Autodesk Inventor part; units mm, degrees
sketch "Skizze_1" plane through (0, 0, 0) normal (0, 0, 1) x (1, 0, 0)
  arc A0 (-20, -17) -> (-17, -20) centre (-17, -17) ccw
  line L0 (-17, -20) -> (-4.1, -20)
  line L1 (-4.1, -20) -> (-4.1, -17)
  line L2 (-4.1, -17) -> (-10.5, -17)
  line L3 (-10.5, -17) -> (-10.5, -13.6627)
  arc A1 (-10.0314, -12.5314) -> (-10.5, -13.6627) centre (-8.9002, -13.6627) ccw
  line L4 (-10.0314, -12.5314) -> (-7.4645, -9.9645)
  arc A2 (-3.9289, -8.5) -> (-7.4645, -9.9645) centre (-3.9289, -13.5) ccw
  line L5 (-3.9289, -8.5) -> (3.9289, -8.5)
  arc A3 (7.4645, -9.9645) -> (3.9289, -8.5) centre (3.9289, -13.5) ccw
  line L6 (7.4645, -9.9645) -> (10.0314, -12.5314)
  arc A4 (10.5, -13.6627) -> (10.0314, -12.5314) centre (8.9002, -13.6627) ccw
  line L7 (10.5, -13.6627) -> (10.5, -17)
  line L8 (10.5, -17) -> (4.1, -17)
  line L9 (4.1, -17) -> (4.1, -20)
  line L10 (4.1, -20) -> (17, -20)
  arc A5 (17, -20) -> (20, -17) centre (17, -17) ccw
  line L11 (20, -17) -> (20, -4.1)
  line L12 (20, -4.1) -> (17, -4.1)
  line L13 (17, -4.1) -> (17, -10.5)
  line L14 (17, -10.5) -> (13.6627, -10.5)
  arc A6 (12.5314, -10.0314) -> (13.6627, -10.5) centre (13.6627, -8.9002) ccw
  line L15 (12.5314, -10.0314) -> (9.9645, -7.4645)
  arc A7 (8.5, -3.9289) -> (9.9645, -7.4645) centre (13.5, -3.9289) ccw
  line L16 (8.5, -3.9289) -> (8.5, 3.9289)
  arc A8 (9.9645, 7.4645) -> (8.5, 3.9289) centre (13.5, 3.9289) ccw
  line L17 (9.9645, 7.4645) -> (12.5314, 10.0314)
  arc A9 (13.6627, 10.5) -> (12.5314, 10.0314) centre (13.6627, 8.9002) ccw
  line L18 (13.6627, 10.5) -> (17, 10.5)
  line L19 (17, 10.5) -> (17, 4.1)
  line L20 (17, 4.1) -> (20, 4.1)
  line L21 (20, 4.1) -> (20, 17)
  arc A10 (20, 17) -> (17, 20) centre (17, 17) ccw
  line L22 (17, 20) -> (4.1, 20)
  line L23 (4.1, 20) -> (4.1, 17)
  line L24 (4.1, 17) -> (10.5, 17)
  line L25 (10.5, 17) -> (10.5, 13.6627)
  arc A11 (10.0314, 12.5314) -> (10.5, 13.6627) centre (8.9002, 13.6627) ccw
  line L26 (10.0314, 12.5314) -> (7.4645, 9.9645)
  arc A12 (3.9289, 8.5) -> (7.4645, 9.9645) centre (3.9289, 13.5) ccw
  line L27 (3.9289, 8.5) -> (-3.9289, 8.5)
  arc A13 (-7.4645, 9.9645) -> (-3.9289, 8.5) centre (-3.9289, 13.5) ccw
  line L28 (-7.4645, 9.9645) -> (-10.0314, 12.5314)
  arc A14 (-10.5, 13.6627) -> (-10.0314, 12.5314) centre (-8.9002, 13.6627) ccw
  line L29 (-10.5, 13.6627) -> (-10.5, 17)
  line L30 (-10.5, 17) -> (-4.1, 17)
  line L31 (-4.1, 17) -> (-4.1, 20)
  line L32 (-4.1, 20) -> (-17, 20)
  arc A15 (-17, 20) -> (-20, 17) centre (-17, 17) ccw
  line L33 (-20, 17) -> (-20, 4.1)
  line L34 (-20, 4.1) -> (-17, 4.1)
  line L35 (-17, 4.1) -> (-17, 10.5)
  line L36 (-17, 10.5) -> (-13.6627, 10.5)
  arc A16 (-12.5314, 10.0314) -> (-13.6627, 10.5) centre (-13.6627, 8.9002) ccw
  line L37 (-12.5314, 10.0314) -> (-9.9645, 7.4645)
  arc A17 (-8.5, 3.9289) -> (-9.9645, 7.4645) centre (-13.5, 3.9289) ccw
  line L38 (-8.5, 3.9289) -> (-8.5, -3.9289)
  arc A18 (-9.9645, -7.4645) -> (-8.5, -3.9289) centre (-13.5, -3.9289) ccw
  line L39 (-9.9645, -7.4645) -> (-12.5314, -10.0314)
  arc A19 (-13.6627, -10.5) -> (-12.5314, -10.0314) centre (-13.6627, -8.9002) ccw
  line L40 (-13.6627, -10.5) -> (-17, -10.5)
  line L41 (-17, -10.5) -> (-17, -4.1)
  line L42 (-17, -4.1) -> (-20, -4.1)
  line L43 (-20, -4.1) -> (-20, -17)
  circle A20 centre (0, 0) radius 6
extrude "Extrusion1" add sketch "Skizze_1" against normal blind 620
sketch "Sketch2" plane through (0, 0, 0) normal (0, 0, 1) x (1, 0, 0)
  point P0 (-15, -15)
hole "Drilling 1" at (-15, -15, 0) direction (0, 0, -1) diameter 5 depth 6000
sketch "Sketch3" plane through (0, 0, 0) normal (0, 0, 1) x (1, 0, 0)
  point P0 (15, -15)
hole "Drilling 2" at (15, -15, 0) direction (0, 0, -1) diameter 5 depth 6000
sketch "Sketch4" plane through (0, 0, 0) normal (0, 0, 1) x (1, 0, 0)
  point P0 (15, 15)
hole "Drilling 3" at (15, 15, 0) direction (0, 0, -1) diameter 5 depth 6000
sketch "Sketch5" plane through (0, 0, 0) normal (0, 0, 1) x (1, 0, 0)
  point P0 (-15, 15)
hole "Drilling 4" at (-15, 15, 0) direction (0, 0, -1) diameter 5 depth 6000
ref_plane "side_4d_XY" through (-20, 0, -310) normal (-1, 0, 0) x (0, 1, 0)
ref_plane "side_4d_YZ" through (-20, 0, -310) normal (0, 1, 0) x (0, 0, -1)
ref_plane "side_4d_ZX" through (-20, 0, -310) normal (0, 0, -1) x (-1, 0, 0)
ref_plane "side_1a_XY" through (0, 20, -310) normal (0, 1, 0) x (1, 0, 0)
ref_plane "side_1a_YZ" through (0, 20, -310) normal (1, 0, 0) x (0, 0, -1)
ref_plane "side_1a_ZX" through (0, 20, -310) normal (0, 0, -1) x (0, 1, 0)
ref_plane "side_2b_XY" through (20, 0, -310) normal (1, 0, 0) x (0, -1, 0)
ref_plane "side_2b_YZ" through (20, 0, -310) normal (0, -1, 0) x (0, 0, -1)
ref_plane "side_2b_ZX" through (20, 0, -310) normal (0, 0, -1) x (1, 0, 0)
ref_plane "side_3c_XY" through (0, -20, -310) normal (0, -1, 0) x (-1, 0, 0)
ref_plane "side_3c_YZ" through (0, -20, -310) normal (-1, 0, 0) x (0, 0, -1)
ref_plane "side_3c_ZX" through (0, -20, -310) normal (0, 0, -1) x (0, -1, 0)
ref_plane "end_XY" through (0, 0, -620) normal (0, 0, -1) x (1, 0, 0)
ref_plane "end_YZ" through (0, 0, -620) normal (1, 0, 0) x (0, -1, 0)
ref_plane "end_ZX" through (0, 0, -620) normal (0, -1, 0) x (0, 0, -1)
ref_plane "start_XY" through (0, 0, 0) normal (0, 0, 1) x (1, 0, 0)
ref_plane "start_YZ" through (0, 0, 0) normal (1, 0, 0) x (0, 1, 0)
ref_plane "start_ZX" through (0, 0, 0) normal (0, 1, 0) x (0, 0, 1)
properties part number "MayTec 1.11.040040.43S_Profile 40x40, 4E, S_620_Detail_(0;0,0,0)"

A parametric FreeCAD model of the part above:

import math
import FreeCAD as App
import Part
import Sketcher
from FreeCAD import Vector

doc = App.newDocument("Part")
body = doc.addObject("PartDesign::Body", "Body")

# Sketch on XY plane
sketch1 = body.newObject("Sketcher::SketchObject", "Sketch")
sketch1.AttachmentSupport = (doc.getObject("XY_Plane"), [""])
sketch1.MapMode = "FlatFace"
sketch1.addGeometry([
    Part.LineSegment(Vector(-20, -4.1, 0), Vector(-20, -17, 0)),  # 0
    Part.ArcOfCircle(Part.Circle(Vector(-17, -17, 0), Vector(0, 0, 1), 3), math.radians(180), math.radians(270)),  # 1
    Part.LineSegment(Vector(-17, -20, 0), Vector(-4.1, -20, 0)),  # 2
    Part.LineSegment(Vector(-4.1, -20, 0), Vector(-4.1, -17, 0)),  # 3
    Part.LineSegment(Vector(-4.1, -17, 0), Vector(-10.5, -17, 0)),  # 4
    Part.LineSegment(Vector(-10.5, -17, 0), Vector(-10.5, -13.7, 0)),  # 5
    Part.ArcOfCircle(Part.Circle(Vector(-8.9, -13.7, 0), Vector(0, 0, 1), 1.6), math.radians(135), math.radians(180)),  # 6
    Part.LineSegment(Vector(-10, -12.5, 0), Vector(-7.5, -10, 0)),  # 7
    Part.ArcOfCircle(Part.Circle(Vector(-3.9, -13.5, 0), Vector(0, 0, 1), 5), math.radians(90), math.radians(135)),  # 8
    Part.LineSegment(Vector(-3.9, -8.5, 0), Vector(3.9, -8.5, 0)),  # 9
    Part.ArcOfCircle(Part.Circle(Vector(3.9, -13.5, 0), Vector(0, 0, 1), 5), math.radians(45), math.radians(90)),  # 10
    Part.LineSegment(Vector(7.5, -10, 0), Vector(10, -12.5, 0)),  # 11
    Part.ArcOfCircle(Part.Circle(Vector(8.9, -13.7, 0), Vector(0, 0, 1), 1.6), math.radians(0), math.radians(45)),  # 12
    Part.LineSegment(Vector(10.5, -13.7, 0), Vector(10.5, -17, 0)),  # 13
    Part.LineSegment(Vector(10.5, -17, 0), Vector(4.1, -17, 0)),  # 14
    Part.LineSegment(Vector(4.1, -17, 0), Vector(4.1, -20, 0)),  # 15
    Part.LineSegment(Vector(4.1, -20, 0), Vector(17, -20, 0)),  # 16
    Part.ArcOfCircle(Part.Circle(Vector(17, -17, 0), Vector(0, 0, 1), 3), math.radians(-90), math.radians(0)),  # 17
    Part.LineSegment(Vector(20, -17, 0), Vector(20, -4.1, 0)),  # 18
    Part.LineSegment(Vector(20, -4.1, 0), Vector(17, -4.1, 0)),  # 19
    Part.LineSegment(Vector(17, -4.1, 0), Vector(17, -10.5, 0)),  # 20
    Part.LineSegment(Vector(17, -10.5, 0), Vector(13.7, -10.5, 0)),  # 21
    Part.ArcOfCircle(Part.Circle(Vector(13.7, -8.9, 0), Vector(0, 0, 1), 1.6), math.radians(-135), math.radians(-90)),  # 22
    Part.LineSegment(Vector(12.5, -10, 0), Vector(10, -7.5, 0)),  # 23
    Part.ArcOfCircle(Part.Circle(Vector(13.5, -3.9, 0), Vector(0, 0, 1), 5), math.radians(180), math.radians(225)),  # 24
    Part.LineSegment(Vector(8.5, -3.9, 0), Vector(8.5, 3.9, 0)),  # 25
    Part.ArcOfCircle(Part.Circle(Vector(13.5, 3.9, 0), Vector(0, 0, 1), 5), math.radians(135), math.radians(180)),  # 26
    Part.LineSegment(Vector(10, 7.5, 0), Vector(12.5, 10, 0)),  # 27
    Part.ArcOfCircle(Part.Circle(Vector(13.7, 8.9, 0), Vector(0, 0, 1), 1.6), math.radians(90), math.radians(135)),  # 28
    Part.LineSegment(Vector(13.7, 10.5, 0), Vector(17, 10.5, 0)),  # 29
    Part.LineSegment(Vector(17, 10.5, 0), Vector(17, 4.1, 0)),  # 30
    Part.LineSegment(Vector(17, 4.1, 0), Vector(20, 4.1, 0)),  # 31
    Part.LineSegment(Vector(20, 4.1, 0), Vector(20, 17, 0)),  # 32
    Part.ArcOfCircle(Part.Circle(Vector(17, 17, 0), Vector(0, 0, 1), 3), math.radians(0), math.radians(90)),  # 33
    Part.LineSegment(Vector(17, 20, 0), Vector(4.1, 20, 0)),  # 34
    Part.LineSegment(Vector(4.1, 20, 0), Vector(4.1, 17, 0)),  # 35
    Part.LineSegment(Vector(4.1, 17, 0), Vector(10.5, 17, 0)),  # 36
    Part.LineSegment(Vector(10.5, 17, 0), Vector(10.5, 13.7, 0)),  # 37
    Part.ArcOfCircle(Part.Circle(Vector(8.9, 13.7, 0), Vector(0, 0, 1), 1.6), math.radians(-45), math.radians(0)),  # 38
    Part.LineSegment(Vector(10, 12.5, 0), Vector(7.5, 10, 0)),  # 39
    Part.ArcOfCircle(Part.Circle(Vector(3.9, 13.5, 0), Vector(0, 0, 1), 5), math.radians(-90), math.radians(-45)),  # 40
    Part.LineSegment(Vector(3.9, 8.5, 0), Vector(-3.9, 8.5, 0)),  # 41
    Part.ArcOfCircle(Part.Circle(Vector(-3.9, 13.5, 0), Vector(0, 0, 1), 5), math.radians(-135), math.radians(-90)),  # 42
    Part.LineSegment(Vector(-7.5, 10, 0), Vector(-10, 12.5, 0)),  # 43
    Part.ArcOfCircle(Part.Circle(Vector(-8.9, 13.7, 0), Vector(0, 0, 1), 1.6), math.radians(180), math.radians(225)),  # 44
    Part.LineSegment(Vector(-10.5, 13.7, 0), Vector(-10.5, 17, 0)),  # 45
    Part.LineSegment(Vector(-10.5, 17, 0), Vector(-4.1, 17, 0)),  # 46
    Part.LineSegment(Vector(-4.1, 17, 0), Vector(-4.1, 20, 0)),  # 47
    Part.LineSegment(Vector(-4.1, 20, 0), Vector(-17, 20, 0)),  # 48
    Part.ArcOfCircle(Part.Circle(Vector(-17, 17, 0), Vector(0, 0, 1), 3), math.radians(90), math.radians(180)),  # 49
    Part.LineSegment(Vector(-20, 17, 0), Vector(-20, 4.1, 0)),  # 50
    Part.LineSegment(Vector(-20, 4.1, 0), Vector(-17, 4.1, 0)),  # 51
    Part.LineSegment(Vector(-17, 4.1, 0), Vector(-17, 10.5, 0)),  # 52
    Part.LineSegment(Vector(-17, 10.5, 0), Vector(-13.7, 10.5, 0)),  # 53
    Part.ArcOfCircle(Part.Circle(Vector(-13.7, 8.9, 0), Vector(0, 0, 1), 1.6), math.radians(45), math.radians(90)),  # 54
    Part.LineSegment(Vector(-12.5, 10, 0), Vector(-10, 7.5, 0)),  # 55
    Part.ArcOfCircle(Part.Circle(Vector(-13.5, 3.9, 0), Vector(0, 0, 1), 5), math.radians(0), math.radians(45)),  # 56
    Part.LineSegment(Vector(-8.5, 3.9, 0), Vector(-8.5, -3.9, 0)),  # 57
    Part.ArcOfCircle(Part.Circle(Vector(-13.5, -3.9, 0), Vector(0, 0, 1), 5), math.radians(-45), math.radians(0)),  # 58
    Part.LineSegment(Vector(-10, -7.5, 0), Vector(-12.5, -10, 0)),  # 59
    Part.ArcOfCircle(Part.Circle(Vector(-13.7, -8.9, 0), Vector(0, 0, 1), 1.6), math.radians(-90), math.radians(-45)),  # 60
    Part.LineSegment(Vector(-13.7, -10.5, 0), Vector(-17, -10.5, 0)),  # 61
    Part.LineSegment(Vector(-17, -10.5, 0), Vector(-17, -4.1, 0)),  # 62
    Part.LineSegment(Vector(-17, -4.1, 0), Vector(-20, -4.1, 0)),  # 63
    Part.Circle(Vector(0, 0, 0), Vector(0, 0, 1), 6),  # 64
], False)
sketch1.addConstraint([
    Sketcher.Constraint("Tangent", 0, 2, 1, 1),
    Sketcher.Constraint("Tangent", 1, 2, 2, 1),
    Sketcher.Constraint("Coincident", 2, 2, 3, 1),
    Sketcher.Constraint("Coincident", 3, 2, 4, 1),
    Sketcher.Constraint("Coincident", 4, 2, 5, 1),
    Sketcher.Constraint("Tangent", 5, 2, 6, 2),
    Sketcher.Constraint("Tangent", 6, 1, 7, 1),
    Sketcher.Constraint("Tangent", 7, 2, 8, 2),
    Sketcher.Constraint("Tangent", 8, 1, 9, 1),
    Sketcher.Constraint("Tangent", 9, 2, 10, 2),
    Sketcher.Constraint("Tangent", 10, 1, 11, 1),
    Sketcher.Constraint("Tangent", 11, 2, 12, 2),
    Sketcher.Constraint("Tangent", 12, 1, 13, 1),
    Sketcher.Constraint("Coincident", 13, 2, 14, 1),
    Sketcher.Constraint("Coincident", 14, 2, 15, 1),
    Sketcher.Constraint("Coincident", 15, 2, 16, 1),
    Sketcher.Constraint("Tangent", 16, 2, 17, 1),
    Sketcher.Constraint("Tangent", 17, 2, 18, 1),
    Sketcher.Constraint("Coincident", 18, 2, 19, 1),
    Sketcher.Constraint("Coincident", 19, 2, 20, 1),
    Sketcher.Constraint("Coincident", 20, 2, 21, 1),
    Sketcher.Constraint("Tangent", 21, 2, 22, 2),
    Sketcher.Constraint("Tangent", 22, 1, 23, 1),
    Sketcher.Constraint("Tangent", 23, 2, 24, 2),
    Sketcher.Constraint("Tangent", 24, 1, 25, 1),
    Sketcher.Constraint("Tangent", 25, 2, 26, 2),
    Sketcher.Constraint("Tangent", 26, 1, 27, 1),
    Sketcher.Constraint("Tangent", 27, 2, 28, 2),
    Sketcher.Constraint("Tangent", 28, 1, 29, 1),
    Sketcher.Constraint("Coincident", 29, 2, 30, 1),
    Sketcher.Constraint("Coincident", 30, 2, 31, 1),
    Sketcher.Constraint("Coincident", 31, 2, 32, 1),
    Sketcher.Constraint("Tangent", 32, 2, 33, 1),
    Sketcher.Constraint("Tangent", 33, 2, 34, 1),
    Sketcher.Constraint("Coincident", 34, 2, 35, 1),
    Sketcher.Constraint("Coincident", 35, 2, 36, 1),
    Sketcher.Constraint("Coincident", 36, 2, 37, 1),
    Sketcher.Constraint("Tangent", 37, 2, 38, 2),
    Sketcher.Constraint("Tangent", 38, 1, 39, 1),
    Sketcher.Constraint("Tangent", 39, 2, 40, 2),
    Sketcher.Constraint("Tangent", 40, 1, 41, 1),
    Sketcher.Constraint("Tangent", 41, 2, 42, 2),
    Sketcher.Constraint("Tangent", 42, 1, 43, 1),
    Sketcher.Constraint("Tangent", 43, 2, 44, 2),
    Sketcher.Constraint("Tangent", 44, 1, 45, 1),
    Sketcher.Constraint("Coincident", 45, 2, 46, 1),
    Sketcher.Constraint("Coincident", 46, 2, 47, 1),
    Sketcher.Constraint("Coincident", 47, 2, 48, 1),
    Sketcher.Constraint("Tangent", 48, 2, 49, 1),
    Sketcher.Constraint("Tangent", 49, 2, 50, 1),
    Sketcher.Constraint("Coincident", 50, 2, 51, 1),
    Sketcher.Constraint("Coincident", 51, 2, 52, 1),
    Sketcher.Constraint("Coincident", 52, 2, 53, 1),
    Sketcher.Constraint("Tangent", 53, 2, 54, 2),
    Sketcher.Constraint("Tangent", 54, 1, 55, 1),
    Sketcher.Constraint("Tangent", 55, 2, 56, 2),
    Sketcher.Constraint("Tangent", 56, 1, 57, 1),
    Sketcher.Constraint("Tangent", 57, 2, 58, 2),
    Sketcher.Constraint("Tangent", 58, 1, 59, 1),
    Sketcher.Constraint("Tangent", 59, 2, 60, 2),
    Sketcher.Constraint("Tangent", 60, 1, 61, 1),
    Sketcher.Constraint("Coincident", 61, 2, 62, 1),
    Sketcher.Constraint("Coincident", 62, 2, 63, 1),
    Sketcher.Constraint("Coincident", 63, 2, 0, 1),
    Sketcher.Constraint("Vertical", 0),
    Sketcher.Constraint("Horizontal", 2),
    Sketcher.Constraint("Vertical", 3),
    Sketcher.Constraint("Horizontal", 4),
    Sketcher.Constraint("Vertical", 5),
    Sketcher.Constraint("Horizontal", 9),
    Sketcher.Constraint("Vertical", 13),
    Sketcher.Constraint("Horizontal", 14),
    Sketcher.Constraint("Vertical", 15),
    Sketcher.Constraint("Horizontal", 16),
    Sketcher.Constraint("Vertical", 18),
    Sketcher.Constraint("Horizontal", 19),
    Sketcher.Constraint("Vertical", 20),
    Sketcher.Constraint("Horizontal", 21),
    Sketcher.Constraint("Vertical", 25),
    Sketcher.Constraint("Horizontal", 29),
    Sketcher.Constraint("Vertical", 30),
    Sketcher.Constraint("Horizontal", 31),
    Sketcher.Constraint("Vertical", 32),
    Sketcher.Constraint("Horizontal", 34),
    Sketcher.Constraint("Vertical", 35),
    Sketcher.Constraint("Horizontal", 36),
    Sketcher.Constraint("Vertical", 37),
    Sketcher.Constraint("Horizontal", 41),
    Sketcher.Constraint("Vertical", 45),
    Sketcher.Constraint("Horizontal", 46),
    Sketcher.Constraint("Vertical", 47),
    Sketcher.Constraint("Horizontal", 48),
    Sketcher.Constraint("Vertical", 50),
    Sketcher.Constraint("Horizontal", 51),
    Sketcher.Constraint("Vertical", 52),
    Sketcher.Constraint("Horizontal", 53),
    Sketcher.Constraint("Vertical", 57),
    Sketcher.Constraint("Horizontal", 61),
    Sketcher.Constraint("Vertical", 62),
    Sketcher.Constraint("Horizontal", 63),
    Sketcher.Constraint("Coincident", 64, 3, -1, 1),
    Sketcher.Constraint("Equal", 8, 10),
    Sketcher.Constraint("Equal", 6, 12),
    Sketcher.Constraint("Equal", 1, 17),
    Sketcher.Constraint("Equal", 12, 22),
    Sketcher.Constraint("Equal", 10, 24),
    Sketcher.Constraint("Equal", 24, 26),
    Sketcher.Constraint("Equal", 22, 28),
    Sketcher.Constraint("Equal", 17, 33),
    Sketcher.Constraint("Equal", 28, 38),
    Sketcher.Constraint("Equal", 26, 40),
    Sketcher.Constraint("Equal", 40, 42),
    Sketcher.Constraint("Equal", 38, 44),
    Sketcher.Constraint("Equal", 33, 49),
    Sketcher.Constraint("Equal", 44, 54),
    Sketcher.Constraint("Equal", 42, 56),
    Sketcher.Constraint("Equal", 56, 58),
    Sketcher.Constraint("Equal", 54, 60),
    Sketcher.Constraint("Symmetric", 1, 3, 33, 3, -1, 1),
    Sketcher.Constraint("Symmetric", 6, 3, 38, 3, -1, 1),
    Sketcher.Constraint("Symmetric", 8, 3, 40, 3, -1, 1),
    Sketcher.Constraint("Symmetric", 12, 3, 44, 3, -1, 1),
    Sketcher.Constraint("Symmetric", 17, 3, 49, 3, -1, 1),
    Sketcher.Constraint("Symmetric", 22, 3, 54, 3, -1, 1),
    Sketcher.Constraint("Symmetric", 24, 3, 56, 3, -1, 1),
    Sketcher.Constraint("Symmetric", 28, 3, 60, 3, -1, 1),
    Sketcher.Constraint("Symmetric", 3, 2, 35, 2, -1, 1),
    Sketcher.Constraint("Symmetric", 14, 2, 46, 2, -1, 1),
    Sketcher.Constraint("Symmetric", 19, 2, 51, 2, -1, 1),
    Sketcher.Constraint("Symmetric", 30, 2, 62, 2, -1, 1),
    Sketcher.Constraint("Symmetric", 6, 3, 12, 3, -2),
    Sketcher.Constraint("Symmetric", 1, 3, 17, 3, -2),
    Sketcher.Constraint("Symmetric", 28, 3, 54, 3, -2),
    Sketcher.Constraint("Symmetric", 3, 2, 14, 2, -2),
    Sketcher.Constraint("Symmetric", 30, 2, 51, 2, -2),
    Sketcher.Constraint("Perpendicular", 7, 11),
    Sketcher.Constraint("Parallel", 11, 23),
    Sketcher.Constraint("Perpendicular", 23, 27),
    Sketcher.Constraint("Perpendicular", 39, 43),
    Sketcher.Constraint("Perpendicular", 55, 59),
    Sketcher.Constraint("Horizontal", 26, 3, 56, 3),
    Sketcher.Constraint("Horizontal", 0, 2, 3, 2),
    Sketcher.Constraint("Vertical", 16, 2, 19, 2),
    Sketcher.Constraint("Equal", 48, 0),
    Sketcher.Constraint("Equal", 61, 5),
    Sketcher.Constraint("Equal", 46, 20),
    Sketcher.Constraint("Equal", 41, 25),
    Sketcher.Constraint("Equal", 11, 23),
    Sketcher.Constraint("Diameter", 64, 12.0),
    Sketcher.Constraint("Radius", 1, 3.0),
    Sketcher.Constraint("Radius", 8, 5.0),
    Sketcher.Constraint("DistanceX", 2, 1, 2, 2, 12.9),
    Sketcher.Constraint("DistanceX", 4, 2, 4, 1, 6.4),
    Sketcher.Constraint("DistanceX", 1, 3, -1, 1, 17.0),
    Sketcher.Constraint("DistanceY", 8, 3, -1, 1, 13.5),
    Sketcher.Constraint("Radius", 6, 1.5998),
    Sketcher.Constraint("DistanceX", 9, 1, 9, 2, 7.8578),
])
pad1 = body.newObject("PartDesign::Pad", "Pad")
pad1.Profile = sketch1
pad1.Length = 620
pad1.Reversed = True

# Sketch on XY plane
sketch2 = body.newObject("Sketcher::SketchObject", "Sketch001")
sketch2.AttachmentSupport = (doc.getObject("XY_Plane"), [""])
sketch2.MapMode = "FlatFace"
sketch2.addGeometry(Part.Circle(Vector(-15, -15, 0), Vector(0, 0, 1), 2.5), False)
sketch2.addConstraint([
    Sketcher.Constraint("Diameter", 0, 5.0),
    Sketcher.Constraint("DistanceX", 0, 3, -1, 1, 15.0),
    Sketcher.Constraint("DistanceY", 0, 3, -1, 1, 15.0),
])
doc.recompute()
hole = body.newObject("PartDesign::Hole", "Hole")
hole.Profile = sketch2
hole.ThreadType = "None"
hole.Diameter = 5
hole.DepthType = "Dimension"
hole.Depth = 6000
hole.DrillPoint = "Flat"

# Sketch on XY plane
sketch3 = body.newObject("Sketcher::SketchObject", "Sketch002")
sketch3.AttachmentSupport = (doc.getObject("XY_Plane"), [""])
sketch3.MapMode = "FlatFace"
sketch3.addGeometry(Part.Circle(Vector(15, -15, 0), Vector(0, 0, 1), 2.5), False)
sketch3.addConstraint([
    Sketcher.Constraint("Diameter", 0, 5.0),
    Sketcher.Constraint("DistanceX", -1, 1, 0, 3, 15.0),
    Sketcher.Constraint("DistanceY", 0, 3, -1, 1, 15.0),
])
doc.recompute()
hole2 = body.newObject("PartDesign::Hole", "Hole001")
hole2.Profile = sketch3
hole2.ThreadType = "None"
hole2.Diameter = 5
hole2.DepthType = "Dimension"
hole2.Depth = 6000
hole2.DrillPoint = "Flat"

# Sketch on XY plane
sketch4 = body.newObject("Sketcher::SketchObject", "Sketch003")
sketch4.AttachmentSupport = (doc.getObject("XY_Plane"), [""])
sketch4.MapMode = "FlatFace"
sketch4.addGeometry(Part.Circle(Vector(15, 15, 0), Vector(0, 0, 1), 2.5), False)
sketch4.addConstraint([
    Sketcher.Constraint("Diameter", 0, 5.0),
    Sketcher.Constraint("DistanceX", -1, 1, 0, 3, 15.0),
    Sketcher.Constraint("DistanceY", -1, 1, 0, 3, 15.0),
])
doc.recompute()
hole3 = body.newObject("PartDesign::Hole", "Hole002")
hole3.Profile = sketch4
hole3.ThreadType = "None"
hole3.Diameter = 5
hole3.DepthType = "Dimension"
hole3.Depth = 6000
hole3.DrillPoint = "Flat"

# Sketch on XY plane
sketch5 = body.newObject("Sketcher::SketchObject", "Sketch004")
sketch5.AttachmentSupport = (doc.getObject("XY_Plane"), [""])
sketch5.MapMode = "FlatFace"
sketch5.addGeometry(Part.Circle(Vector(-15, 15, 0), Vector(0, 0, 1), 2.5), False)
sketch5.addConstraint([
    Sketcher.Constraint("Diameter", 0, 5.0),
    Sketcher.Constraint("DistanceX", 0, 3, -1, 1, 15.0),
    Sketcher.Constraint("DistanceY", -1, 1, 0, 3, 15.0),
])
doc.recompute()
hole4 = body.newObject("PartDesign::Hole", "Hole003")
hole4.Profile = sketch5
hole4.ThreadType = "None"
hole4.Diameter = 5
hole4.DepthType = "Dimension"
hole4.Depth = 6000
hole4.DrillPoint = "Flat"

doc.recompute()
